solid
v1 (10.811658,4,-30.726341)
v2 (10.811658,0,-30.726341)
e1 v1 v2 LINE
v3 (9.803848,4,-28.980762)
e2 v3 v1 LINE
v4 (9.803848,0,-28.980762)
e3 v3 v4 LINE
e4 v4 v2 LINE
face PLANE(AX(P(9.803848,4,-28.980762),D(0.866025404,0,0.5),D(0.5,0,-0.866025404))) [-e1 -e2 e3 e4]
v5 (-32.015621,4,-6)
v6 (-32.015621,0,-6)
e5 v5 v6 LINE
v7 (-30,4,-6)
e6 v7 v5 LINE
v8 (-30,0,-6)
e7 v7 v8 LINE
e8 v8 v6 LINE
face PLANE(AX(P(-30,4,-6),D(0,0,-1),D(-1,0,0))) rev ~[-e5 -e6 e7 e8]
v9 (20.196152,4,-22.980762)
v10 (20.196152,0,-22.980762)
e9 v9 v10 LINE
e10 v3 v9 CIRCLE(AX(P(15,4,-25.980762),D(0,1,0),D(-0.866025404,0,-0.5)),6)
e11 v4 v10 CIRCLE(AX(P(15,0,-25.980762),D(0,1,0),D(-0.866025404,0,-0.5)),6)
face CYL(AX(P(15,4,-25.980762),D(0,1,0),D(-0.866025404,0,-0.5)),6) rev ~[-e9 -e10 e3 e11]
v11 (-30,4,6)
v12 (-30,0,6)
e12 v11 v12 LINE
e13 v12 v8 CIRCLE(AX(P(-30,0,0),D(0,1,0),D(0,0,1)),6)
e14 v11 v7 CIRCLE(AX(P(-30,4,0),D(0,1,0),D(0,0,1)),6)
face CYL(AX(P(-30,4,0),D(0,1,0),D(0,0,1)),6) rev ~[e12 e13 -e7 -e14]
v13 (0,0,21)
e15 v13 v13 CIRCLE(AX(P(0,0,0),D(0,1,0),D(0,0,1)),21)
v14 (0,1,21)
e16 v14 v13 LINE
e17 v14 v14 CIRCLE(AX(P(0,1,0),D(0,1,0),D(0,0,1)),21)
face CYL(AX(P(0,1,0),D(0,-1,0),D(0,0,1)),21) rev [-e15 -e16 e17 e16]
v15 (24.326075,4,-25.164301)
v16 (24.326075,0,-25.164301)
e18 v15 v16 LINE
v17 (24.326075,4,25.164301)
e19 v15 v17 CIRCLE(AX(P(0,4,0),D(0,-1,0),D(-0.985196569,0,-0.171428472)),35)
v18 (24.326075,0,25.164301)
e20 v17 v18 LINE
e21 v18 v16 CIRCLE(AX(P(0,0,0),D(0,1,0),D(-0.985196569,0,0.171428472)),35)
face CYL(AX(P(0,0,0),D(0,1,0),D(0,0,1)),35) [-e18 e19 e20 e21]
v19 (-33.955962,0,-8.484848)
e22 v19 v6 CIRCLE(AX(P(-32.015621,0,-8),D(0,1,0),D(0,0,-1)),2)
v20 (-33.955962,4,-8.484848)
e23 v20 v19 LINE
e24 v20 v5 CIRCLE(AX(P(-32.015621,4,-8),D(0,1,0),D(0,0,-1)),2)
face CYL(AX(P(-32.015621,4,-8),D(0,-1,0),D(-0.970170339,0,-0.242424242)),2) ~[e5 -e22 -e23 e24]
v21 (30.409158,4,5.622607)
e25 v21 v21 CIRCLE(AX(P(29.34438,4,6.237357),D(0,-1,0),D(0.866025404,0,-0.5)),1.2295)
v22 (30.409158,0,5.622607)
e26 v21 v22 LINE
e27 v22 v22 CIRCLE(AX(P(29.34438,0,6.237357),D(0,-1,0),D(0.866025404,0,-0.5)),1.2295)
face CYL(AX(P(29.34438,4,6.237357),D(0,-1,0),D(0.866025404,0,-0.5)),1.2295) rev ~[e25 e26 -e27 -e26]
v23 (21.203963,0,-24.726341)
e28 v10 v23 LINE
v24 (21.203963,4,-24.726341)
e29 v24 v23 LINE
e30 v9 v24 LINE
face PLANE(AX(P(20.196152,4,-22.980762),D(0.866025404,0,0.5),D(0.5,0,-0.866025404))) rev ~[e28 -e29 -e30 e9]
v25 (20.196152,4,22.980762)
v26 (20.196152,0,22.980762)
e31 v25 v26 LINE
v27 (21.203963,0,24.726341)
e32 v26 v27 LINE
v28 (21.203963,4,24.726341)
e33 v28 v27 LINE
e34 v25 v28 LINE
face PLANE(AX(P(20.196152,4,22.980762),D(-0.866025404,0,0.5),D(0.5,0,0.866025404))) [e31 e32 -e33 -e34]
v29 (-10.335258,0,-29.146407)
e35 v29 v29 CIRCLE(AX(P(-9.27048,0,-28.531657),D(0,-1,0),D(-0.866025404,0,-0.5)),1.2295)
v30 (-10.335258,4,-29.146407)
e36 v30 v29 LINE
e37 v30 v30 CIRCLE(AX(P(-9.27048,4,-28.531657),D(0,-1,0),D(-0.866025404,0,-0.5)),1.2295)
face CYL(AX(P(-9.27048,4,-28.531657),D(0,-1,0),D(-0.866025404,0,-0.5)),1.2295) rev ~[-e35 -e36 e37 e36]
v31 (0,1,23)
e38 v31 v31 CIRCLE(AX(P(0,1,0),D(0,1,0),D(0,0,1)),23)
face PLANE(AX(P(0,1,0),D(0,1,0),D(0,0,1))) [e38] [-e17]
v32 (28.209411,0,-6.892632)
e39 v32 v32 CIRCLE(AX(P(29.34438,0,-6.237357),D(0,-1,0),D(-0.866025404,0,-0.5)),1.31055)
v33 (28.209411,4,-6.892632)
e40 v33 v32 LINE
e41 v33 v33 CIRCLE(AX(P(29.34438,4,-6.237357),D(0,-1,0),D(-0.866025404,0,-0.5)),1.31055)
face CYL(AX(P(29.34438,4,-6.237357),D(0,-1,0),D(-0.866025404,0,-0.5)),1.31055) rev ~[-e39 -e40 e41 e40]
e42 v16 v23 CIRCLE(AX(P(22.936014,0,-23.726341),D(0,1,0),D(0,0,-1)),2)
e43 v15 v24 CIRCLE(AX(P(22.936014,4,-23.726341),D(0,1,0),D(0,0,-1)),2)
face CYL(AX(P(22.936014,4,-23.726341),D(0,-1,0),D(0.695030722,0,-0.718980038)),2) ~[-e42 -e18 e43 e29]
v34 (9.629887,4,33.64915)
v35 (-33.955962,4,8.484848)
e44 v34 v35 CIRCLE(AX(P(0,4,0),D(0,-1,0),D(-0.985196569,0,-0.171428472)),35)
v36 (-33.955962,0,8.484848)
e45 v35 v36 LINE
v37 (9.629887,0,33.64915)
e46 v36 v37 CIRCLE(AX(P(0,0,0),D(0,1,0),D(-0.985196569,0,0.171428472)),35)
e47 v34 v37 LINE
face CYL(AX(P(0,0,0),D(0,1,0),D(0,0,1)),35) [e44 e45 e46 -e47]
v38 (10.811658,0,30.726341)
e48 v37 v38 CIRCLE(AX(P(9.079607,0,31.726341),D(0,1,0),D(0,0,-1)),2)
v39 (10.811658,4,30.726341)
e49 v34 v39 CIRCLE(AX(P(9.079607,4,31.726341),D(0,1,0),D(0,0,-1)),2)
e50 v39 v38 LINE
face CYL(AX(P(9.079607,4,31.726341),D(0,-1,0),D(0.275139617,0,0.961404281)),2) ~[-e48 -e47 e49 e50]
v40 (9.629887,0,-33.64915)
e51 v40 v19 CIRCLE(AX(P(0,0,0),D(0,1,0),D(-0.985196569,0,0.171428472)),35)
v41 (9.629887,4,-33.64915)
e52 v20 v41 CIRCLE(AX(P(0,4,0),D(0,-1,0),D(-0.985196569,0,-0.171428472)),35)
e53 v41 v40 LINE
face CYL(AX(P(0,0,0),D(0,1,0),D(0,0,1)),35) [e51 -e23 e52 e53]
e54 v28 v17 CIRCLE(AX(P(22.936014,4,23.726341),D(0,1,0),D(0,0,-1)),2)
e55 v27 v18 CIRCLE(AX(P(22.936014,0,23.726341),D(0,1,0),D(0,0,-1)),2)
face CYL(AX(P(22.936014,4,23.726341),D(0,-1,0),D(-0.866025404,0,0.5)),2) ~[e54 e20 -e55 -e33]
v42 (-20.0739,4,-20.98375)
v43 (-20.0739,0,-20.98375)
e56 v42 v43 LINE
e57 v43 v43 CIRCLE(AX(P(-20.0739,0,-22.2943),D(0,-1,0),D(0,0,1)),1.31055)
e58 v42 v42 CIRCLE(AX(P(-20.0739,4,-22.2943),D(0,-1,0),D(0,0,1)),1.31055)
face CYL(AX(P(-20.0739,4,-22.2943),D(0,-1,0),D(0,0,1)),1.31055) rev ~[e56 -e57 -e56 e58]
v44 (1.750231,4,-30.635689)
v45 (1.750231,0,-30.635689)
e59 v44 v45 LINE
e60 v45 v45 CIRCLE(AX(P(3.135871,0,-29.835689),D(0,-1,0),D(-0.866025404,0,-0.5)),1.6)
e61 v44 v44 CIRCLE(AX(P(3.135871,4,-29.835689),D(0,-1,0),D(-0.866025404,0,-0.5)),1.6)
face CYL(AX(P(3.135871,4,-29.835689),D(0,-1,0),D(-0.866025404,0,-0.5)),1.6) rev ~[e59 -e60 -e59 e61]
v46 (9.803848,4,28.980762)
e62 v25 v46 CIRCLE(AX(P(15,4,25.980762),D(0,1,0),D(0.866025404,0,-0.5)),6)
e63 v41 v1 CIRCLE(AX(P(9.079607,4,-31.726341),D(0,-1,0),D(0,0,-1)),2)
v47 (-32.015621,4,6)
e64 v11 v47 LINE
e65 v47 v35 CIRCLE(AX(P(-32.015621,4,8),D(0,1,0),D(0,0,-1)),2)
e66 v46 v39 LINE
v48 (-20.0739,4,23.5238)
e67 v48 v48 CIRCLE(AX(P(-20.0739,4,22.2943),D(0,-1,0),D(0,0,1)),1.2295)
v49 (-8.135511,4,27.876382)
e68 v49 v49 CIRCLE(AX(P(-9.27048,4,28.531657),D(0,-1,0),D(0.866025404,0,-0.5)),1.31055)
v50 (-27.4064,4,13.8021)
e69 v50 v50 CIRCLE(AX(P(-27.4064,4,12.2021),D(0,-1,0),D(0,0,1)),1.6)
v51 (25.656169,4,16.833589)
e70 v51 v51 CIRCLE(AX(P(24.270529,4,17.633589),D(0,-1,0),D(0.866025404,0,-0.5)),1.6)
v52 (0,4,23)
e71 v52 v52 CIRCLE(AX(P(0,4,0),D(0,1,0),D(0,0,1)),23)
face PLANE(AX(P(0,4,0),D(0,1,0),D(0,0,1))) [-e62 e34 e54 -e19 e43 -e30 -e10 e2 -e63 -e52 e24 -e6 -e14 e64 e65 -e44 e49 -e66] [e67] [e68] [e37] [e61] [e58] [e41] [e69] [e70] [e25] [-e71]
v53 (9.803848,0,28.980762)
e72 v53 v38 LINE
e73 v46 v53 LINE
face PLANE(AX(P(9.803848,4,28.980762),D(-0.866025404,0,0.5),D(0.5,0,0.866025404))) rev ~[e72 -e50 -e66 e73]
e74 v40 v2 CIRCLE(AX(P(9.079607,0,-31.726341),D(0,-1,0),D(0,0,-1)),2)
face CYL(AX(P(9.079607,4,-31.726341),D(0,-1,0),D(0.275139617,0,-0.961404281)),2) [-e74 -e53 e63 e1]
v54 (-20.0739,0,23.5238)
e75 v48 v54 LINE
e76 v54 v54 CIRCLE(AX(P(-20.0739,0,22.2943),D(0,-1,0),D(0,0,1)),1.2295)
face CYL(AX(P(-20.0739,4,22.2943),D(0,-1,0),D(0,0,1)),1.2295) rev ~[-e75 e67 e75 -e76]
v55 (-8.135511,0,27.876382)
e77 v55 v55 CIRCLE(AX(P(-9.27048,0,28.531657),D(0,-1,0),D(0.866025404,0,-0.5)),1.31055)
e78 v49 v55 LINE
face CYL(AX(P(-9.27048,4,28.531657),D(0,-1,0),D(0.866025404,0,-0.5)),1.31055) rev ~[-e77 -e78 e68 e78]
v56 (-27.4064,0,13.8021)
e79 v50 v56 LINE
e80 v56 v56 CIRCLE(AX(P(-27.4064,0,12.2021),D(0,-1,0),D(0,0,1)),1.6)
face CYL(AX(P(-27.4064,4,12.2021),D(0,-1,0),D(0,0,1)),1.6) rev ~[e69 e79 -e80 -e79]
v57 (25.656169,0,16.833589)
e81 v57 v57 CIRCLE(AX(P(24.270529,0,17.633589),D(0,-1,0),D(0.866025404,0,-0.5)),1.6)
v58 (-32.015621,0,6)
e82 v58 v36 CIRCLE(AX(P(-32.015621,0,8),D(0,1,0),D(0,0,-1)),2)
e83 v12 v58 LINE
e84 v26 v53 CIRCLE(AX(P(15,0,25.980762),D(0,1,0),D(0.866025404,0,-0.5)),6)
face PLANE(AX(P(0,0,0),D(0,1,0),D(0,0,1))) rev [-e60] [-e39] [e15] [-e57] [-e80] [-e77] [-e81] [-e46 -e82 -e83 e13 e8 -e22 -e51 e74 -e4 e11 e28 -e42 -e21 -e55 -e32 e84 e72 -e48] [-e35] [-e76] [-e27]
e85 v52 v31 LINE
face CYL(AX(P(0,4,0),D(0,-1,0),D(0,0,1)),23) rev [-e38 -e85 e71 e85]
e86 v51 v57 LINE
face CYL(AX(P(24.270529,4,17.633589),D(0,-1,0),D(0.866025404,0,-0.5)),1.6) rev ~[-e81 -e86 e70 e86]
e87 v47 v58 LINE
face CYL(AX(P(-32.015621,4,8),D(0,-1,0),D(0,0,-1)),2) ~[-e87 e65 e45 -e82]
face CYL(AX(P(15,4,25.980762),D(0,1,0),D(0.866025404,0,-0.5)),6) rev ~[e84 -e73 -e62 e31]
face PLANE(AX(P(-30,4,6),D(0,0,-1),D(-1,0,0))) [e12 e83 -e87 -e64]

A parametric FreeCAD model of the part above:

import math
import FreeCAD as App
import Part
import Sketcher


def edges_at(feature, points):
    """Names of the edges that pass closest to the given points."""
    edges = feature.Shape.Edges
    near = lambda p: min(range(len(edges)), key=lambda i: edges[i].distToShape(Part.Vertex(*p))[0])
    return sorted({f"Edge{near(p) + 1}" for p in points})


def add_polygon(sketch, points):
    """Adds a closed chain of lines whose ends are joined by coincident constraints."""
    first, n = sketch.GeometryCount, len(points)
    for a, b in zip(points, points[1:] + points[:1]):
        sketch.addGeometry(Part.LineSegment(App.Vector(*a, 0), App.Vector(*b, 0)), False)
    for i in range(n):
        sketch.addConstraint(Sketcher.Constraint("Coincident", first + i, 2, first + (i + 1) % n, 1))

doc = App.newDocument("Part")
body = doc.addObject("PartDesign::Body", "Body")

sketch1 = body.newObject("Sketcher::SketchObject", "Sketch")
sketch1.AttachmentSupport = (doc.getObject("YZ_Plane"), [""])
sketch1.MapMode = "FlatFace"
add_polygon(sketch1, [(4, 35), (0, 35), (0, 21), (1, 21), (1, 23), (4, 23)])
sketch1.addConstraint([
    Sketcher.Constraint("Horizontal", 0),
    Sketcher.Constraint("Vertical", 1),
    Sketcher.Constraint("Horizontal", 2),
    Sketcher.Constraint("Vertical", 3),
    Sketcher.Constraint("Horizontal", 4),
    Sketcher.Constraint("Vertical", 5),
    Sketcher.Constraint("PointOnObject", 0, 2, -2),
    Sketcher.Constraint("DistanceX", 0, 2, 0, 1, 4.0),
    Sketcher.Constraint("DistanceX", 4, 1, 4, 2, 3.0),
    Sketcher.Constraint("DistanceY", -1, 1, 0, 2, 35.0),
    Sketcher.Constraint("DistanceY", -1, 1, 1, 2, 21.0),
    Sketcher.Constraint("DistanceY", -1, 1, 3, 2, 23.0),
])
revolution = body.newObject("PartDesign::Revolution", "Revolution")
revolution.Profile = sketch1
revolution.ReferenceAxis = (sketch1, ["H_Axis"])
revolution.Angle = 360

sketch2 = body.newObject("Sketcher::SketchObject", "Sketch001")
sketch2.AttachmentSupport = (doc.getObject("XZ_Plane"), [""])
sketch2.MapMode = "FlatFace"
sketch2.AttachmentOffset = App.Placement(App.Vector(0, 0, -4), App.Rotation())
sketch2.addGeometry([
    Part.LineSegment(App.Vector(-34.5, 6, 0), App.Vector(-30, 6, 0)),
    Part.ArcOfCircle(Part.Circle(App.Vector(-30, 0, 0), App.Vector(0, 0, 1), 6), math.radians(-90), math.radians(90)),
    Part.LineSegment(App.Vector(-30, -6, 0), App.Vector(-34.5, -6, 0)),
    Part.ArcOfCircle(Part.Circle(App.Vector(0, 0, 0), App.Vector(0, 0, 1), 35), math.radians(170.13), math.radians(189.87)),
], False)
sketch2.addConstraint([
    Sketcher.Constraint("Tangent", 0, 2, 1, 2),
    Sketcher.Constraint("Tangent", 1, 1, 2, 1),
    Sketcher.Constraint("Coincident", 2, 2, 3, 2),
    Sketcher.Constraint("Coincident", 3, 1, 0, 1),
    Sketcher.Constraint("Horizontal", 0),
    Sketcher.Constraint("Horizontal", 2),
    Sketcher.Constraint("Coincident", 3, 3, -1, 1),
    Sketcher.Constraint("PointOnObject", 1, 3, -1),
    Sketcher.Constraint("Radius", 1, 6.0),
    Sketcher.Constraint("DistanceX", 1, 3, -1, 1, 30.0),
    Sketcher.Constraint("Radius", 3, 35.0),
])
pocket1 = body.newObject("PartDesign::Pocket", "Pocket")
pocket1.Profile = sketch2
pocket1.Length = 4
pocket1.Reversed = True
doc.recompute()

polarpattern = body.newObject("PartDesign::PolarPattern", "PolarPattern")
polarpattern.Originals = [pocket1]
polarpattern.Axis = (doc.getObject("Y_Axis"), [""])
polarpattern.Angle = 360
polarpattern.Occurrences = 3
body.Tip = polarpattern

sketch3 = body.newObject("Sketcher::SketchObject", "Sketch002")
sketch3.AttachmentSupport = (doc.getObject("XZ_Plane"), [""])
sketch3.MapMode = "FlatFace"
sketch3.AttachmentOffset = App.Placement(App.Vector(0, 0, -4), App.Rotation())
sketch3.addGeometry(Part.Circle(App.Vector(-27.4, 12.2, 0), App.Vector(0, 0, 1), 1.6), False)
sketch3.addConstraint([
    Sketcher.Constraint("Diameter", 0, 3.2),
    Sketcher.Constraint("DistanceY", -1, 1, 0, 3, 12.202),
    Sketcher.Constraint("DistanceX", 0, 3, -1, 1, 27.4064),
])
doc.recompute()
hole = body.newObject("PartDesign::Hole", "Hole")
hole.Profile = sketch3
hole.ThreadType = "None"
hole.Diameter = 3.2
hole.DepthType = "ThroughAll"
hole.Reversed = True
doc.recompute()

polarpattern2 = body.newObject("PartDesign::PolarPattern", "PolarPattern001")
polarpattern2.Originals = [hole]
polarpattern2.Axis = (doc.getObject("Y_Axis"), [""])
polarpattern2.Angle = 360
polarpattern2.Occurrences = 3
body.Tip = polarpattern2

sketch4 = body.newObject("Sketcher::SketchObject", "Sketch003")
sketch4.AttachmentSupport = (doc.getObject("XZ_Plane"), [""])
sketch4.MapMode = "FlatFace"
sketch4.AttachmentOffset = App.Placement(App.Vector(0, 0, -4), App.Rotation())
sketch4.addGeometry(Part.Circle(App.Vector(-20.1, -22.3, 0), App.Vector(0, 0, 1), 1.3), False)
sketch4.addConstraint([
    Sketcher.Constraint("Diameter", 0, 2.621),
    Sketcher.Constraint("DistanceX", 0, 3, -1, 1, 20.074),
    Sketcher.Constraint("DistanceY", 0, 3, -1, 1, 22.2943),
])
doc.recompute()
hole2 = body.newObject("PartDesign::Hole", "Hole001")
hole2.Profile = sketch4
hole2.ThreadType = "None"
hole2.Diameter = 2.6211
hole2.DepthType = "ThroughAll"
hole2.Reversed = True
doc.recompute()

polarpattern3 = body.newObject("PartDesign::PolarPattern", "PolarPattern002")
polarpattern3.Originals = [hole2]
polarpattern3.Axis = (doc.getObject("Y_Axis"), [""])
polarpattern3.Angle = 360
polarpattern3.Occurrences = 3
body.Tip = polarpattern3

sketch5 = body.newObject("Sketcher::SketchObject", "Sketch004")
sketch5.AttachmentSupport = (doc.getObject("XZ_Plane"), [""])
sketch5.MapMode = "FlatFace"
sketch5.AttachmentOffset = App.Placement(App.Vector(0, 0, -4), App.Rotation())
sketch5.addGeometry(Part.Circle(App.Vector(-20.1, 22.3, 0), App.Vector(0, 0, 1), 1.2), False)
sketch5.addConstraint([
    Sketcher.Constraint("Diameter", 0, 2.459),
    Sketcher.Constraint("DistanceX", 0, 3, -1, 1, 20.074),
    Sketcher.Constraint("DistanceY", -1, 1, 0, 3, 22.2943),
])
doc.recompute()
hole3 = body.newObject("PartDesign::Hole", "Hole002")
hole3.Profile = sketch5
hole3.ThreadType = "None"
hole3.Diameter = 2.459
hole3.DepthType = "ThroughAll"
hole3.Reversed = True
doc.recompute()

polarpattern4 = body.newObject("PartDesign::PolarPattern", "PolarPattern003")
polarpattern4.Originals = [hole3]
polarpattern4.Axis = (doc.getObject("Y_Axis"), [""])
polarpattern4.Angle = 360
polarpattern4.Occurrences = 3
body.Tip = polarpattern4
doc.recompute()

fillet = body.newObject("PartDesign::Fillet", "Fillet")
fillet.Base = (polarpattern4, edges_at(polarpattern4, [
    (12.045, 2, 32.862),
    (22.437, 2, 26.862),
    (22.437, 2, -26.862),
    (12.045, 2, -32.862),
    (-34.482, 2, -6),
    (-34.482, 2, 6),
]))
fillet.Radius = 2

doc.recompute()
